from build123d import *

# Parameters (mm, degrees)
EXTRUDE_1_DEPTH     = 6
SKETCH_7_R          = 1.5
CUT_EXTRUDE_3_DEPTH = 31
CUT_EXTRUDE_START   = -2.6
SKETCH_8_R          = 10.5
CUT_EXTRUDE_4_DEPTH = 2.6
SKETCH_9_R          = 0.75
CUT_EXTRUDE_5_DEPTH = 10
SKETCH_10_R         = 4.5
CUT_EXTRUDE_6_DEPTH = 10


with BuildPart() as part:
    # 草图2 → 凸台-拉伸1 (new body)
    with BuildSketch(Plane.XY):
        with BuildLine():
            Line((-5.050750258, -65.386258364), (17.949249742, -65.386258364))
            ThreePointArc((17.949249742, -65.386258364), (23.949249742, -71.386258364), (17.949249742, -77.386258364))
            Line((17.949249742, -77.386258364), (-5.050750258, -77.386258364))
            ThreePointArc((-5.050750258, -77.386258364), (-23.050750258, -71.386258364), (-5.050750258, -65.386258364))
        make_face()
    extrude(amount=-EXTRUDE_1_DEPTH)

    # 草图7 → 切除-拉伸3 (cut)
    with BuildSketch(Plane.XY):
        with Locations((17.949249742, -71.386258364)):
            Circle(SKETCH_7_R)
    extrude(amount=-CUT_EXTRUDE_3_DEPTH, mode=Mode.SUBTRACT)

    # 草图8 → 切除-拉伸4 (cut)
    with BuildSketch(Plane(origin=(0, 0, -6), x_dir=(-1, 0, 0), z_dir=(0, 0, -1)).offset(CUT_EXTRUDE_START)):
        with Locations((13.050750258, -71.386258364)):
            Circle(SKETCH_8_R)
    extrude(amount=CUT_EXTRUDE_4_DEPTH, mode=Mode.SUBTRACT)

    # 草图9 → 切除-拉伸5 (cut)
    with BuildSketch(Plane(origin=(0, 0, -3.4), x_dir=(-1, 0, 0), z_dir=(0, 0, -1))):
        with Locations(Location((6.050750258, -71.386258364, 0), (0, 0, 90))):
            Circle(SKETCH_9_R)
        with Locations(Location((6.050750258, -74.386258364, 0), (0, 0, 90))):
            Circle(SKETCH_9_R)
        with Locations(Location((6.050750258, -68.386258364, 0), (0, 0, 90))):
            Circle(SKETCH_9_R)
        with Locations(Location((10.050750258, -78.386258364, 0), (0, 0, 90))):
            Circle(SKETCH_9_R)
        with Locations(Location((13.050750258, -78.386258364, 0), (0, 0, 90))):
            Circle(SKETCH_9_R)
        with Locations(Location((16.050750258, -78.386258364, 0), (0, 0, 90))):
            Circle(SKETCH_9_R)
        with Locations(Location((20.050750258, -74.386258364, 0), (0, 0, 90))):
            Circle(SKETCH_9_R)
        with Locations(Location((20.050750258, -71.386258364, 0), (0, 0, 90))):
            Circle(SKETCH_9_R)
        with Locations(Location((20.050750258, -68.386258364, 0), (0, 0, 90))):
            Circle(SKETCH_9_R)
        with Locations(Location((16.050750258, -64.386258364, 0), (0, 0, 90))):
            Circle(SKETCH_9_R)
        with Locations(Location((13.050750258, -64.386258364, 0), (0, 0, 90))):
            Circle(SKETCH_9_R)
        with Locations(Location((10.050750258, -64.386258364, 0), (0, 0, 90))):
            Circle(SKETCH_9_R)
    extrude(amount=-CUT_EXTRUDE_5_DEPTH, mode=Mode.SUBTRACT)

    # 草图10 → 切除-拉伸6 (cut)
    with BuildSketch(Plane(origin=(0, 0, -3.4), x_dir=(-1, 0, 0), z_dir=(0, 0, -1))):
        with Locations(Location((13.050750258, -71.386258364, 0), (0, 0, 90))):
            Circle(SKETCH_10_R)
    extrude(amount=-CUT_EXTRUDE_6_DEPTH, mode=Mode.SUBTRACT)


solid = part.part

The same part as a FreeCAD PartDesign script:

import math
import FreeCAD as App
import Part
import Sketcher

V = App.Vector
Q = App.Units.Quantity

doc = App.newDocument("Part")
body = doc.addObject("PartDesign::Body", "Body")

# Sketch on XY plane
sketch1 = body.newObject("Sketcher::SketchObject", "Sketch")
sketch1.AttachmentSupport = (doc.getObject("XY_Plane"), [""])
sketch1.MapMode = "FlatFace"
sketch1.addGeometry([
    Part.LineSegment(V(18, -65, 0), V(-5, -65, 0)),
    Part.ArcOfCircle(Part.Circle(V(-13, -71, 0), V(0, 0, 1), 10), math.radians(37), math.radians(323)),
    Part.LineSegment(V(-5, -77, 0), V(18, -77, 0)),
    Part.ArcOfCircle(Part.Circle(V(18, -71, 0), V(0, 0, 1), 6), math.radians(-90), math.radians(90)),
], False)
sketch1.addConstraint([
    Sketcher.Constraint("Coincident", 0, 2, 1, 1),
    Sketcher.Constraint("Coincident", 1, 2, 2, 1),
    Sketcher.Constraint("Tangent", 2, 2, 3, 1),
    Sketcher.Constraint("Tangent", 3, 2, 0, 1),
    Sketcher.Constraint("Horizontal", 0),
    Sketcher.Constraint("Horizontal", 2),
    Sketcher.Constraint("Horizontal", 1, 3, 3, 3),
    Sketcher.Constraint("Radius", 1, Q("10 mm")),
    Sketcher.Constraint("Radius", 3, Q("6 mm")),
    Sketcher.Constraint("DistanceX", 0, 2, 0, 1, Q("23 mm")),
    Sketcher.Constraint("DistanceX", 1, 3, -1, 1, Q("13.05075 mm")),
    Sketcher.Constraint("DistanceY", 1, 3, -1, 1, Q("71.386258 mm")),
])
pad1 = body.newObject("PartDesign::Pad", "Pad")
pad1.Profile = sketch1
pad1.Length = 6
pad1.Reversed = True

# Sketch on XY plane
sketch2 = body.newObject("Sketcher::SketchObject", "Sketch001")
sketch2.AttachmentSupport = (doc.getObject("XY_Plane"), [""])
sketch2.MapMode = "FlatFace"
sketch2.addGeometry(Part.Circle(V(17.9, -71.4, 0), V(0, 0, 1), 1.5), False)
sketch2.addConstraint([
    Sketcher.Constraint("Diameter", 0, Q("3 mm")),
    Sketcher.Constraint("DistanceX", -1, 1, 0, 3, Q("17.94925 mm")),
    Sketcher.Constraint("DistanceY", 0, 3, -1, 1, Q("71.386258 mm")),
])
pocket1 = body.newObject("PartDesign::Pocket", "Pocket")
pocket1.Profile = sketch2
pocket1.Length = 31

# Sketch on XY plane
sketch3 = body.newObject("Sketcher::SketchObject", "Sketch002")
sketch3.AttachmentSupport = (doc.getObject("XY_Plane"), [""])
sketch3.MapMode = "FlatFace"
sketch3.AttachmentOffset = App.Placement(V(0, 0, -3.4), App.Rotation())
sketch3.addGeometry(Part.Circle(V(-13, -71, 0), V(0, 0, 1), 10), False)
sketch3.addConstraint([
    Sketcher.Constraint("Diameter", 0, Q("21 mm")),
    Sketcher.Constraint("DistanceX", 0, 3, -1, 1, Q("13.05075 mm")),
    Sketcher.Constraint("DistanceY", 0, 3, -1, 1, Q("71.386258 mm")),
])
pocket2 = body.newObject("PartDesign::Pocket", "Pocket001")
pocket2.Profile = sketch3
pocket2.Length = 2.6

# Sketch on XY plane
sketch4 = body.newObject("Sketcher::SketchObject", "Sketch003")
sketch4.AttachmentSupport = (doc.getObject("XY_Plane"), [""])
sketch4.MapMode = "FlatFace"
sketch4.AttachmentOffset = App.Placement(V(0, 0, -3.4), App.Rotation())
sketch4.addGeometry([
    Part.Circle(V(-6.1, -71.4, 0), V(0, 0, 1), 0.8),  # 0
    Part.Circle(V(-6.1, -74.4, 0), V(0, 0, 1), 0.8),  # 1
    Part.Circle(V(-6.1, -68.4, 0), V(0, 0, 1), 0.8),  # 2
    Part.Circle(V(-10.1, -78.4, 0), V(0, 0, 1), 0.8),  # 3
    Part.Circle(V(-13.1, -78.4, 0), V(0, 0, 1), 0.8),  # 4
    Part.Circle(V(-16.1, -78.4, 0), V(0, 0, 1), 0.8),  # 5
    Part.Circle(V(-20.1, -74.4, 0), V(0, 0, 1), 0.8),  # 6
    Part.Circle(V(-20.1, -71.4, 0), V(0, 0, 1), 0.8),  # 7
    Part.Circle(V(-20.1, -68.4, 0), V(0, 0, 1), 0.8),  # 8
    Part.Circle(V(-16.1, -64.4, 0), V(0, 0, 1), 0.8),  # 9
    Part.Circle(V(-13.1, -64.4, 0), V(0, 0, 1), 0.8),  # 10
    Part.Circle(V(-10.1, -64.4, 0), V(0, 0, 1), 0.8),  # 11
], False)
sketch4.addConstraint([
    Sketcher.Constraint("Equal", 0, 1),
    Sketcher.Constraint("Equal", 1, 2),
    Sketcher.Constraint("Equal", 2, 3),
    Sketcher.Constraint("Equal", 3, 4),
    Sketcher.Constraint("Equal", 4, 5),
    Sketcher.Constraint("Equal", 5, 6),
    Sketcher.Constraint("Equal", 6, 7),
    Sketcher.Constraint("Equal", 7, 8),
    Sketcher.Constraint("Equal", 8, 9),
    Sketcher.Constraint("Equal", 9, 10),
    Sketcher.Constraint("Equal", 10, 11),
    Sketcher.Constraint("Horizontal", 3, 3, 4, 3),
    Sketcher.Constraint("Horizontal", 4, 3, 5, 3),
    Sketcher.Constraint("Horizontal", 1, 3, 6, 3),
    Sketcher.Constraint("Horizontal", 0, 3, 7, 3),
    Sketcher.Constraint("Horizontal", 2, 3, 8, 3),
    Sketcher.Constraint("Horizontal", 9, 3, 10, 3),
    Sketcher.Constraint("Horizontal", 10, 3, 11, 3),
    Sketcher.Constraint("Vertical", 0, 3, 1, 3),
    Sketcher.Constraint("Vertical", 1, 3, 2, 3),
    Sketcher.Constraint("Vertical", 6, 3, 7, 3),
    Sketcher.Constraint("Vertical", 7, 3, 8, 3),
    Sketcher.Constraint("Vertical", 5, 3, 9, 3),
    Sketcher.Constraint("Vertical", 4, 3, 10, 3),
    Sketcher.Constraint("Vertical", 3, 3, 11, 3),
    Sketcher.Constraint("Diameter", 0, Q("1.5 mm")),
    Sketcher.Constraint("DistanceY", 1, 3, 0, 3, Q("3 mm")),
    Sketcher.Constraint("DistanceY", 0, 3, 2, 3, Q("3 mm")),
    Sketcher.Constraint("DistanceX", 3, 3, 1, 3, Q("4 mm")),
    Sketcher.Constraint("DistanceY", 3, 3, 1, 3, Q("4 mm")),
    Sketcher.Constraint("DistanceX", 4, 3, 3, 3, Q("3 mm")),
    Sketcher.Constraint("DistanceX", 5, 3, 4, 3, Q("3 mm")),
    Sketcher.Constraint("DistanceX", 6, 3, 5, 3, Q("4 mm")),
    Sketcher.Constraint("DistanceY", 8, 3, 9, 3, Q("4 mm")),
    Sketcher.Constraint("DistanceX", 0, 3, -1, 1, Q("6.05075 mm")),
    Sketcher.Constraint("DistanceY", 0, 3, -1, 1, Q("71.386258 mm")),
])
pocket3 = body.newObject("PartDesign::Pocket", "Pocket002")
pocket3.Profile = sketch4
pocket3.Length = 10
pocket3.Reversed = True

# Sketch on XY plane
sketch5 = body.newObject("Sketcher::SketchObject", "Sketch004")
sketch5.AttachmentSupport = (doc.getObject("XY_Plane"), [""])
sketch5.MapMode = "FlatFace"
sketch5.AttachmentOffset = App.Placement(V(0, 0, -3.4), App.Rotation())
sketch5.addGeometry(Part.Circle(V(-13.1, -71.4, 0), V(0, 0, 1), 4.5), False)
sketch5.addConstraint([
    Sketcher.Constraint("Diameter", 0, Q("9 mm")),
    Sketcher.Constraint("DistanceX", 0, 3, -1, 1, Q("13.05075 mm")),
    Sketcher.Constraint("DistanceY", 0, 3, -1, 1, Q("71.386258 mm")),
])
pocket4 = body.newObject("PartDesign::Pocket", "Pocket003")
pocket4.Profile = sketch5
pocket4.Length = 10
pocket4.Reversed = True

doc.recompute()
